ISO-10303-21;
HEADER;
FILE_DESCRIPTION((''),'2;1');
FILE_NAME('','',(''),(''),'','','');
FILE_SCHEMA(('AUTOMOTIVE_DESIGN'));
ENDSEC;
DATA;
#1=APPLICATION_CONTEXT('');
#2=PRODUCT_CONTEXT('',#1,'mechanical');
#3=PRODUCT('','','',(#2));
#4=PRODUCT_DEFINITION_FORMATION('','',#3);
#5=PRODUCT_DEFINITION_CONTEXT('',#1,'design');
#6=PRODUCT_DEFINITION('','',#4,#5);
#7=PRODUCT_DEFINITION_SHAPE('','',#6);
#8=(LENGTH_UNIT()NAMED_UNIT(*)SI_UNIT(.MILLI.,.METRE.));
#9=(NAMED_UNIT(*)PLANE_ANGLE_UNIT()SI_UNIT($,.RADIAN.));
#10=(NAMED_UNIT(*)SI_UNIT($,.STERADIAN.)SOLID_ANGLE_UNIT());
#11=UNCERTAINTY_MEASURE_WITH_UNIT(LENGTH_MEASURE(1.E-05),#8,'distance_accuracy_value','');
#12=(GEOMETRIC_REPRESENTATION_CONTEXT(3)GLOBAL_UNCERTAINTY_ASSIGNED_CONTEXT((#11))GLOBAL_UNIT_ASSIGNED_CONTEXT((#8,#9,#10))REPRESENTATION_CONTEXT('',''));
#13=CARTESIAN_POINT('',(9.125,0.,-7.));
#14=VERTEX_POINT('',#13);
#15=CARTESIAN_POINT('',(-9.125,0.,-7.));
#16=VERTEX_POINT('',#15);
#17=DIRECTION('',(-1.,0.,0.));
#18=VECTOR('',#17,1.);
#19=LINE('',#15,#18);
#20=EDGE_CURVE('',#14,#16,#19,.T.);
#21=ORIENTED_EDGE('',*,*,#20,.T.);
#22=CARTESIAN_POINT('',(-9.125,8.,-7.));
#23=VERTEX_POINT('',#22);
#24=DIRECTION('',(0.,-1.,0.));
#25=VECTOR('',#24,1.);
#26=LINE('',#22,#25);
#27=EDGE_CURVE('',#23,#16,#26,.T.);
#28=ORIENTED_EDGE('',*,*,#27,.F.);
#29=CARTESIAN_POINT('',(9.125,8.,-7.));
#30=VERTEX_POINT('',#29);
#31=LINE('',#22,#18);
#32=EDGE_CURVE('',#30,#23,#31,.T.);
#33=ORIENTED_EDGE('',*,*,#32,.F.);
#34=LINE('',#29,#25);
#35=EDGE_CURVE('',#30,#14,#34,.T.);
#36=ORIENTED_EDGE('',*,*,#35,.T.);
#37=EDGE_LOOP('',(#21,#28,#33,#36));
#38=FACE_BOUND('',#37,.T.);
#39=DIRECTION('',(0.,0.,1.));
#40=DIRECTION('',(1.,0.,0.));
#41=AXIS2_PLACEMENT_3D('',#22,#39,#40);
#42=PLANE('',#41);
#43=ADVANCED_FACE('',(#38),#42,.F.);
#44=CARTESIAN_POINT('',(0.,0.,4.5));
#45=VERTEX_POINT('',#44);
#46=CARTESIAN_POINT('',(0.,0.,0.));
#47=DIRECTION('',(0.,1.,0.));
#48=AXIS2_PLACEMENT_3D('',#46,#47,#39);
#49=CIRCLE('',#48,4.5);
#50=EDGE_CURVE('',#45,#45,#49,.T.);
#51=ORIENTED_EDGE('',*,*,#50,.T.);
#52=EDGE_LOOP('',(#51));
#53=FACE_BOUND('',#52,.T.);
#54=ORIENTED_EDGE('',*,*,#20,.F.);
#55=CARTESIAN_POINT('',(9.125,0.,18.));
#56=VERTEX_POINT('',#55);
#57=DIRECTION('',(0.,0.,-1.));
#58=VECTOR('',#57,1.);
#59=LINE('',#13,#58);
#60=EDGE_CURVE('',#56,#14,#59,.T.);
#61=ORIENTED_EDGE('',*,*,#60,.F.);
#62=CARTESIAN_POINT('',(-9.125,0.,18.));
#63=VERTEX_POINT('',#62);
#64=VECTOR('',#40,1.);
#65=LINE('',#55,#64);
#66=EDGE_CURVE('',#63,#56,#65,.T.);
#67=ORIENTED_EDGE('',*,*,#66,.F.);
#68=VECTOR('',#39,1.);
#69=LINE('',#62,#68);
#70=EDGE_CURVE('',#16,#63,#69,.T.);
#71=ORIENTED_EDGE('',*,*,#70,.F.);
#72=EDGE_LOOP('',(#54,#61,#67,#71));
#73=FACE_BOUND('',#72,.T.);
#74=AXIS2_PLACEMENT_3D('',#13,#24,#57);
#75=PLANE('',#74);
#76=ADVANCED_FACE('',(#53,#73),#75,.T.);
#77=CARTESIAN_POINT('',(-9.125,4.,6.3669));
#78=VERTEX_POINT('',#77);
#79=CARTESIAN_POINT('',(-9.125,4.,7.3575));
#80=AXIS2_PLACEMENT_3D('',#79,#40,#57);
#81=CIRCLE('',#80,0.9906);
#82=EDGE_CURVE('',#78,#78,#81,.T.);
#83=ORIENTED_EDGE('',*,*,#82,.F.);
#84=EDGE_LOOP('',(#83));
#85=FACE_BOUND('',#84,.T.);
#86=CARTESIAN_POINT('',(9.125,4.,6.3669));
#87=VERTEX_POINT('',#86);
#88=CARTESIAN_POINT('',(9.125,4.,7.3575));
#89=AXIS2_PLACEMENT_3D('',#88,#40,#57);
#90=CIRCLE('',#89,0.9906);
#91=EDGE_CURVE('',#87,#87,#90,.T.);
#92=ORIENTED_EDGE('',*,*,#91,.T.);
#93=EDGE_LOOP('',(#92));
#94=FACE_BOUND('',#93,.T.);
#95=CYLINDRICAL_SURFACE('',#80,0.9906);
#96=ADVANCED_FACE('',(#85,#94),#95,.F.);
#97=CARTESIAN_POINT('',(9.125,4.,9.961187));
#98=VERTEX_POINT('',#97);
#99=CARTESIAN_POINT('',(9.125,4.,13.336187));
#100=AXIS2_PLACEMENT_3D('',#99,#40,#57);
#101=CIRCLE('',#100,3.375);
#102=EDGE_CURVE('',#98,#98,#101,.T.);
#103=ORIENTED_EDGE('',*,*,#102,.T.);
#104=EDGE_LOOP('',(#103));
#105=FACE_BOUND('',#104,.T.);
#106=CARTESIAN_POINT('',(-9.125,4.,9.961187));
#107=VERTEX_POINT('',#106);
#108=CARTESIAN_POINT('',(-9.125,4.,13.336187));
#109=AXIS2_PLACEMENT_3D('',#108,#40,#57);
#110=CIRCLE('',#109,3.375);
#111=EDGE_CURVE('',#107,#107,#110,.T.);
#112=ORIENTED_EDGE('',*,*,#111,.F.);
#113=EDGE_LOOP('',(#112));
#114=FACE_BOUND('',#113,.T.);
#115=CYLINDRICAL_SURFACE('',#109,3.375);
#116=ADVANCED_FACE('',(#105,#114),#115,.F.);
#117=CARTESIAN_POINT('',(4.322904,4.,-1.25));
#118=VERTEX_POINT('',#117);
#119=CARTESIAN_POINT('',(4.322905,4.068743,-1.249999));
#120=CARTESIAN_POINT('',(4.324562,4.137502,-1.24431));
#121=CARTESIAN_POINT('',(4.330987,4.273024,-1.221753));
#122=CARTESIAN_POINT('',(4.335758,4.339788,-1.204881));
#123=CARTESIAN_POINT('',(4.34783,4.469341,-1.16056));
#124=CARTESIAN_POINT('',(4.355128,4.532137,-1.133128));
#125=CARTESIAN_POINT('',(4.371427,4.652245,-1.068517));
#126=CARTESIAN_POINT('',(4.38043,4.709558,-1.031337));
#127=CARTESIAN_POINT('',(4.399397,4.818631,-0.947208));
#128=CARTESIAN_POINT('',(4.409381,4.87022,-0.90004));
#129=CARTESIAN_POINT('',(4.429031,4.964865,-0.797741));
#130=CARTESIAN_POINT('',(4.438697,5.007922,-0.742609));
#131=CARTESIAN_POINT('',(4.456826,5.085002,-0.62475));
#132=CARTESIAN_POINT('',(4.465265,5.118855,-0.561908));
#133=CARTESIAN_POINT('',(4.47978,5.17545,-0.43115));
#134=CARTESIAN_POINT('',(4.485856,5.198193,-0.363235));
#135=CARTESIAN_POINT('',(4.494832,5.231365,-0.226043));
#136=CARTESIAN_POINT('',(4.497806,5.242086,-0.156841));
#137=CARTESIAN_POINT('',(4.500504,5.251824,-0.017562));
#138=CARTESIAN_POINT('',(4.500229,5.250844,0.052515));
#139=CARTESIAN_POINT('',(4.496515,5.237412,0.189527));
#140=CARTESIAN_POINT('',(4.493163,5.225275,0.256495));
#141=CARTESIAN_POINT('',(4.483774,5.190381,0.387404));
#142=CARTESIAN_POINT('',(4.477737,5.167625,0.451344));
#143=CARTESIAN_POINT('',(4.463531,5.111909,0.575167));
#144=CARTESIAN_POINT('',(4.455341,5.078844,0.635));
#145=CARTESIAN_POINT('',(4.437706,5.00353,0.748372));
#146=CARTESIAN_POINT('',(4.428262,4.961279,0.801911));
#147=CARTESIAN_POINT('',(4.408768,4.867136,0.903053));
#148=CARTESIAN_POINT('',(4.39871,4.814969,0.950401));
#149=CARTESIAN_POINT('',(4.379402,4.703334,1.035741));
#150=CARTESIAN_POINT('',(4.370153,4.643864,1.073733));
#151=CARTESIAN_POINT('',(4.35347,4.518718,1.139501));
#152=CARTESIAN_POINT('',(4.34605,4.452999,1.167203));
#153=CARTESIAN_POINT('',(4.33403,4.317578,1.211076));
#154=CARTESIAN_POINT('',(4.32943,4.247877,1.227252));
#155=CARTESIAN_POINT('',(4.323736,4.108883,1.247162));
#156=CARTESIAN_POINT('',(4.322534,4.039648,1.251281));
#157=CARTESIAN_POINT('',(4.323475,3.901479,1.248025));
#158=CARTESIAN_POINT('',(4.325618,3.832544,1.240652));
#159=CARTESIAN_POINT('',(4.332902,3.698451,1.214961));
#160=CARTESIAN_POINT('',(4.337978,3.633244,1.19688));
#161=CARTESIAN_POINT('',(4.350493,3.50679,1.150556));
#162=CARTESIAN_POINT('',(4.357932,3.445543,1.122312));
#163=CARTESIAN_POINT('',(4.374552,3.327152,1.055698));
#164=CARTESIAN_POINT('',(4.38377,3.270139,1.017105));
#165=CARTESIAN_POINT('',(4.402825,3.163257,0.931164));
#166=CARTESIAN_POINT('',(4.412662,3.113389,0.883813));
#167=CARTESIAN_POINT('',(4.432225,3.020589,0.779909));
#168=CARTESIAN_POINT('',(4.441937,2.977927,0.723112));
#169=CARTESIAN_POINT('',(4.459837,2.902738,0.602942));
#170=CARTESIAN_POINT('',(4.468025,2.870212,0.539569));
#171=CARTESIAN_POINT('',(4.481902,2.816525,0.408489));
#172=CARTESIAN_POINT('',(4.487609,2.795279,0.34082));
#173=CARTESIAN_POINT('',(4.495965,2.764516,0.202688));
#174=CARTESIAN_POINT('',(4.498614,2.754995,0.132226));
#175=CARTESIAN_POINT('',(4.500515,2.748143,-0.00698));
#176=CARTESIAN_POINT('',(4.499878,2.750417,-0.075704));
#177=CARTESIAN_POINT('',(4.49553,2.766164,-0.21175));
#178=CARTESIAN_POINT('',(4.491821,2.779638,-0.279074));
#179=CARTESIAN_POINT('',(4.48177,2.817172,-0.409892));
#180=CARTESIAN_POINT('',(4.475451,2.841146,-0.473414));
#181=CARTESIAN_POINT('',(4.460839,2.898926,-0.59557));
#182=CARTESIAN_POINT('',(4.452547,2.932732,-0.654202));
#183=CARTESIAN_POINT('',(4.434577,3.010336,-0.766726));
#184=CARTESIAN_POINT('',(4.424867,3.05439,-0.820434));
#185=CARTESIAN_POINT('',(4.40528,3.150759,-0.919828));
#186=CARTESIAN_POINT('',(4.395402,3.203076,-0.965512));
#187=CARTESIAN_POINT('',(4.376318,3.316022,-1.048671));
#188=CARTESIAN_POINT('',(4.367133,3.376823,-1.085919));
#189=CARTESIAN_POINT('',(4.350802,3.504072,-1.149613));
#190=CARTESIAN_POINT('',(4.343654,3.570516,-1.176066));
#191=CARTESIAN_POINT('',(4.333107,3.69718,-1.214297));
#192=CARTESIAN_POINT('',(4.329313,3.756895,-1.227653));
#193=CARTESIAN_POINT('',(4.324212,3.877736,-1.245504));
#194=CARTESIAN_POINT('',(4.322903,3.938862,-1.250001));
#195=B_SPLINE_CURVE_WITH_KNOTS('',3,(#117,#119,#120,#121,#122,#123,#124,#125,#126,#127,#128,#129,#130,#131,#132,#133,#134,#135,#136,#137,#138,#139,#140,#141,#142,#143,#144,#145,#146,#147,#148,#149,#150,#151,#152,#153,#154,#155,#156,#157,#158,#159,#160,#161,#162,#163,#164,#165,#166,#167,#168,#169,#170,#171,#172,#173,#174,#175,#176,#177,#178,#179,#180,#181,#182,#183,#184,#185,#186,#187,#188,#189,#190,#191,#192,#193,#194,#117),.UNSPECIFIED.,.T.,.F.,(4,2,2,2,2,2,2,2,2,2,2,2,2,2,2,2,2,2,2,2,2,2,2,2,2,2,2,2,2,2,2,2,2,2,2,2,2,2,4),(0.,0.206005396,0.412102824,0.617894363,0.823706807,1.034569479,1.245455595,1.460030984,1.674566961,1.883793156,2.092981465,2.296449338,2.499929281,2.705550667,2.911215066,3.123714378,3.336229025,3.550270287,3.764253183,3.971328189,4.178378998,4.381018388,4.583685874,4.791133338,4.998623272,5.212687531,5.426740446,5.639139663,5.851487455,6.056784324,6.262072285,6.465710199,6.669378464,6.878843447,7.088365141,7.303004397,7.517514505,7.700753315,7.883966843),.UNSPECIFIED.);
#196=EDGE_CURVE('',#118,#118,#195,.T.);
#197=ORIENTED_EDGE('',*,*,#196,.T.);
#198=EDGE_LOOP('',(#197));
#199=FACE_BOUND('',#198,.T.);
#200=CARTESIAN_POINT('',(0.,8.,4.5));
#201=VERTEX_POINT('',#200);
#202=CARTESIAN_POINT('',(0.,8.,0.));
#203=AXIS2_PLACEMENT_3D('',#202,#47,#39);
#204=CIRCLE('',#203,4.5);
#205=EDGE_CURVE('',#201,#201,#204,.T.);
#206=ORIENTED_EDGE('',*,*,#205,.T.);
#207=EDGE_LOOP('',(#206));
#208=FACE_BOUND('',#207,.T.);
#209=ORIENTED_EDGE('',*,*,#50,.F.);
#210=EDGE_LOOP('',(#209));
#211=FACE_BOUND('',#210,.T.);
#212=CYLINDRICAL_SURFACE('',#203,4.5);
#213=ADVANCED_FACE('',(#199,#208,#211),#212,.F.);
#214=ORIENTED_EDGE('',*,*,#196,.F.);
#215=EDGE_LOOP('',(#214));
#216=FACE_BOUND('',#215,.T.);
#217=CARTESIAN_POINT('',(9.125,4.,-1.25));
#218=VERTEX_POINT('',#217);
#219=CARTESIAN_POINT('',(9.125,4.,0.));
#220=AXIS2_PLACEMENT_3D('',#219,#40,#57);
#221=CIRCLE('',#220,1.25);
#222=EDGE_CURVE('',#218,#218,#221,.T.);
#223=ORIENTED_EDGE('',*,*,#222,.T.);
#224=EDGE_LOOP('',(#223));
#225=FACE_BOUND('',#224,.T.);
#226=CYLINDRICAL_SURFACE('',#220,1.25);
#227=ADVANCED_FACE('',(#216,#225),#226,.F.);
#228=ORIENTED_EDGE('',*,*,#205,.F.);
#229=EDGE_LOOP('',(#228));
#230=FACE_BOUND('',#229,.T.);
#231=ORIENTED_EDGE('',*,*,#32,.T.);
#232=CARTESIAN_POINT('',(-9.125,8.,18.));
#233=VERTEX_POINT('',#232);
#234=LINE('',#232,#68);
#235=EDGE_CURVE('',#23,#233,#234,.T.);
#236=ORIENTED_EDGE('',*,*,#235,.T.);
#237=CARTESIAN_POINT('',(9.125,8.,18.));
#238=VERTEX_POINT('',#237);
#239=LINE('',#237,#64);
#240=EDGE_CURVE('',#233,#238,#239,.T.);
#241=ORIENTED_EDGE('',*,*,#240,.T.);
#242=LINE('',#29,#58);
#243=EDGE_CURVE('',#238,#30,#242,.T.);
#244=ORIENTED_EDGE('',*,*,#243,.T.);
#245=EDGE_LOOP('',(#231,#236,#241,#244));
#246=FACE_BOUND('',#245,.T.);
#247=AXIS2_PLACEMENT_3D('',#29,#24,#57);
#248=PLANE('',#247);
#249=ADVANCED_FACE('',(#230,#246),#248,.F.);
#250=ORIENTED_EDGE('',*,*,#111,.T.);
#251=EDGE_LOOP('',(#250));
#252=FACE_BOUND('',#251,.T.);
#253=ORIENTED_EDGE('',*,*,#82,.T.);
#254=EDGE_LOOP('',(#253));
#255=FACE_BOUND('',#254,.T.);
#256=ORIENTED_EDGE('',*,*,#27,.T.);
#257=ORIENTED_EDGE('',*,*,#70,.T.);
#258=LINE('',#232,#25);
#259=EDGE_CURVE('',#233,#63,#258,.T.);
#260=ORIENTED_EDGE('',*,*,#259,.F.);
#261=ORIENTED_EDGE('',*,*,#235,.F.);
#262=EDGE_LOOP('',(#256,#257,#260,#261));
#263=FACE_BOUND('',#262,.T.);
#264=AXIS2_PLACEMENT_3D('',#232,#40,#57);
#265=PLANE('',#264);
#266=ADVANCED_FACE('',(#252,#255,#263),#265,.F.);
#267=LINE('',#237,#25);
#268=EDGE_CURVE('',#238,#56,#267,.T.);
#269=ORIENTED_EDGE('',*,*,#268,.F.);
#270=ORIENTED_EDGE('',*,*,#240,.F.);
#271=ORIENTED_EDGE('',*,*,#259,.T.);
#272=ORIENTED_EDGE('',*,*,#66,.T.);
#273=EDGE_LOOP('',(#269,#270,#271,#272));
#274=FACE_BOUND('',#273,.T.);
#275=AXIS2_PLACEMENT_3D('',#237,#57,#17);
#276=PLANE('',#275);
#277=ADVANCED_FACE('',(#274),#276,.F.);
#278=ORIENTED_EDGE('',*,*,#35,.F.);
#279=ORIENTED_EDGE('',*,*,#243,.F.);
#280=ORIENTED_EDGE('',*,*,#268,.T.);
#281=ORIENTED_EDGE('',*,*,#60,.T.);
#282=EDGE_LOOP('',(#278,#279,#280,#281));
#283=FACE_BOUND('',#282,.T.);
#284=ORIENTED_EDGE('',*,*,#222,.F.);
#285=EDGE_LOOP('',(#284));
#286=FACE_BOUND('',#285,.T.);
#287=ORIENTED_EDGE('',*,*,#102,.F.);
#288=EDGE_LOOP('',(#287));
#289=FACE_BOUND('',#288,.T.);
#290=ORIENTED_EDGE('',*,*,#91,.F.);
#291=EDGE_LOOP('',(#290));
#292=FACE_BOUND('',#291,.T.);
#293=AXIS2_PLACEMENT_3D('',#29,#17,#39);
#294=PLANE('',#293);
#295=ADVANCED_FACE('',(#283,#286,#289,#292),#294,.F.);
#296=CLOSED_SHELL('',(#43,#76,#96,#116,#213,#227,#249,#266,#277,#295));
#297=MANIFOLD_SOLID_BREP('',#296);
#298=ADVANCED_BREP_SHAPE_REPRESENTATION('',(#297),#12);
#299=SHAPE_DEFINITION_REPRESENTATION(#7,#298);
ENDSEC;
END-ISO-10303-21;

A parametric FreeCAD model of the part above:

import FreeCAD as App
import Part
import Sketcher
from FreeCAD import Vector
Q = App.Units.Quantity

doc = App.newDocument("Part")
body = doc.addObject("PartDesign::Body", "Body")

# Sketch on XZ plane
sketch1 = body.newObject("Sketcher::SketchObject", "Sketch")
sketch1.AttachmentSupport = (doc.getObject("XZ_Plane"), [""])
sketch1.MapMode = "FlatFace"
sketch1.addGeometry(Part.LineSegment(Vector(-9.125, -7, 0), Vector(-9.125, 18, 0)), False)
sketch1.addGeometry(Part.LineSegment(Vector(-9.125, 18, 0), Vector(9.125, 18, 0)), False)
sketch1.addGeometry(Part.LineSegment(Vector(9.125, 18, 0), Vector(9.125, -7, 0)), False)
sketch1.addGeometry(Part.LineSegment(Vector(9.125, -7, 0), Vector(-9.125, -7, 0)), False)
sketch1.addConstraint(Sketcher.Constraint("Coincident", 0, 2, 1, 1))
sketch1.addConstraint(Sketcher.Constraint("Coincident", 1, 2, 2, 1))
sketch1.addConstraint(Sketcher.Constraint("Coincident", 2, 2, 3, 1))
sketch1.addConstraint(Sketcher.Constraint("Coincident", 3, 2, 0, 1))
sketch1.addConstraint(Sketcher.Constraint("Vertical", 0))
sketch1.addConstraint(Sketcher.Constraint("Horizontal", 1))
sketch1.addConstraint(Sketcher.Constraint("Vertical", 2))
sketch1.addConstraint(Sketcher.Constraint("Horizontal", 3))
sketch1.addConstraint(Sketcher.Constraint("DistanceY", 0, 1, 0, 2, Q("25 mm")))
sketch1.addConstraint(Sketcher.Constraint("DistanceY", -1, 1, 0, 2, Q("18 mm")))
sketch1.addConstraint(Sketcher.Constraint("DistanceX", 1, 1, 1, 2, Q("18.25 mm")))
sketch1.addConstraint(Sketcher.Constraint("DistanceX", 0, 2, -1, 1, Q("9.125 mm")))
pad1 = body.newObject("PartDesign::Pad", "Pad")
pad1.Profile = sketch1
pad1.Length = 8
pad1.Reversed = True

# Sketch on XZ plane
sketch2 = body.newObject("Sketcher::SketchObject", "Sketch001")
sketch2.AttachmentSupport = (doc.getObject("XZ_Plane"), [""])
sketch2.MapMode = "FlatFace"
sketch2.AttachmentOffset = App.Placement(Vector(0, 0, -8), App.Rotation())
sketch2.addGeometry(Part.Circle(Vector(0, 0, 0), Vector(0, 0, 1), 4.5), False)
sketch2.addConstraint(Sketcher.Constraint("Coincident", 0, 3, -1, 1))
sketch2.addConstraint(Sketcher.Constraint("Diameter", 0, Q("9 mm")))
doc.recompute()
hole = body.newObject("PartDesign::Hole", "Hole")
hole.Profile = sketch2
hole.ThreadType = "None"
hole.Diameter = 9
hole.DepthType = "ThroughAll"
hole.Reversed = True

# Sketch on YZ plane
sketch3 = body.newObject("Sketcher::SketchObject", "Sketch002")
sketch3.AttachmentSupport = (doc.getObject("YZ_Plane"), [""])
sketch3.MapMode = "FlatFace"
sketch3.AttachmentOffset = App.Placement(Vector(0, 0, 9.125), App.Rotation())
sketch3.addGeometry(Part.Circle(Vector(4, 13.336187, 0), Vector(0, 0, 1), 3.375), False)
sketch3.addGeometry(Part.Circle(Vector(4, 7.3575, 0), Vector(0, 0, 1), 0.9906), False)
sketch3.addConstraint(Sketcher.Constraint("Vertical", 0, 3, 1, 3))
sketch3.addConstraint(Sketcher.Constraint("Diameter", 0, Q("6.75 mm")))
sketch3.addConstraint(Sketcher.Constraint("DistanceX", -1, 1, 0, 3, Q("4 mm")))
sketch3.addConstraint(Sketcher.Constraint("Diameter", 1, Q("1.9812 mm")))
sketch3.addConstraint(Sketcher.Constraint("DistanceY", -1, 1, 1, 3, Q("7.3575 mm")))
sketch3.addConstraint(Sketcher.Constraint("DistanceY", -1, 1, 0, 3, Q("13.336187 mm")))
pocket1 = body.newObject("PartDesign::Pocket", "Pocket")
pocket1.Profile = sketch3
pocket1.Type = "ThroughAll"

# Sketch on YZ plane
sketch4 = body.newObject("Sketcher::SketchObject", "Sketch003")
sketch4.AttachmentSupport = (doc.getObject("YZ_Plane"), [""])
sketch4.MapMode = "FlatFace"
sketch4.AttachmentOffset = App.Placement(Vector(0, 0, 9.125), App.Rotation())
sketch4.addGeometry(Part.Circle(Vector(4, 0, 0), Vector(0, 0, 1), 1.25), False)
sketch4.addConstraint(Sketcher.Constraint("PointOnObject", 0, 3, -1))
sketch4.addConstraint(Sketcher.Constraint("Diameter", 0, Q("2.5 mm")))
sketch4.addConstraint(Sketcher.Constraint("DistanceX", -1, 1, 0, 3, Q("4 mm")))
doc.recompute()
hole2 = body.newObject("PartDesign::Hole", "Hole001")
hole2.Profile = sketch4
hole2.ThreadType = "None"
hole2.Diameter = 2.5
hole2.DepthType = "Dimension"
hole2.Depth = 6.35
hole2.DrillPoint = "Angled"
hole2.DrillPointAngle = 118

doc.recompute()
